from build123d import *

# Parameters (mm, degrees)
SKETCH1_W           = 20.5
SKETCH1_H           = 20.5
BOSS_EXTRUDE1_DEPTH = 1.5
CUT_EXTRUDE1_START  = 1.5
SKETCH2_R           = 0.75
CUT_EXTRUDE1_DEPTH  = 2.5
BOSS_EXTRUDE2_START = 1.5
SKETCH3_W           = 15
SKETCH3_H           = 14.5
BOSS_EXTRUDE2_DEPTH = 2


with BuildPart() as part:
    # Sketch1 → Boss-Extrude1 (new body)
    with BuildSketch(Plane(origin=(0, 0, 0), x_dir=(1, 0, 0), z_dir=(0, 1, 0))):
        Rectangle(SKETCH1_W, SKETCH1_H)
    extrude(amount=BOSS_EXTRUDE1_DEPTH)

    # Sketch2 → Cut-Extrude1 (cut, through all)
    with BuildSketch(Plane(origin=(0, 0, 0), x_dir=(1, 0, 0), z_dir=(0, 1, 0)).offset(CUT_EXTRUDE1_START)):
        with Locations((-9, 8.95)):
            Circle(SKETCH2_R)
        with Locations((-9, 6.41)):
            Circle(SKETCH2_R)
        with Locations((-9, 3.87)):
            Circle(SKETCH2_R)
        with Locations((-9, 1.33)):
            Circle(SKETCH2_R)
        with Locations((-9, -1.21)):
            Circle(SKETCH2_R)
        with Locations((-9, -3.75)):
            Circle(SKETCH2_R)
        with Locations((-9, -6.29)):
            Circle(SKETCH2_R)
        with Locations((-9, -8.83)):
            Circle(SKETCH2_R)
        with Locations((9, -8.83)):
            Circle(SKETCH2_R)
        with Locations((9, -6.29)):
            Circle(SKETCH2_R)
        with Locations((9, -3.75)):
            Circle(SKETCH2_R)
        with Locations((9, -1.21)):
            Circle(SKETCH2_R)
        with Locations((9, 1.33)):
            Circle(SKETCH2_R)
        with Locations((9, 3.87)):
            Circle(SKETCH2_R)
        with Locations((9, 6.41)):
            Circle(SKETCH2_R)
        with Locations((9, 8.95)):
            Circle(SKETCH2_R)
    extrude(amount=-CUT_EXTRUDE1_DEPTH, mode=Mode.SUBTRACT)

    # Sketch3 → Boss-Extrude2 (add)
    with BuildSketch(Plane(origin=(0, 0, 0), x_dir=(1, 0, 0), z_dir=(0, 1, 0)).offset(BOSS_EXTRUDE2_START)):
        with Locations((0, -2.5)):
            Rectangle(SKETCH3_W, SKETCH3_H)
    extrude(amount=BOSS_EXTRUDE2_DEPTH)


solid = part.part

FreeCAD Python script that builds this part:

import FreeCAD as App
import Part
import Sketcher
from FreeCAD import Vector
Q = App.Units.Quantity

doc = App.newDocument("Part")
body = doc.addObject("PartDesign::Body", "Body")

# Sketch on XZ plane
sketch1 = body.newObject("Sketcher::SketchObject", "Sketch")
sketch1.AttachmentSupport = (doc.getObject("XZ_Plane"), [""])
sketch1.MapMode = "FlatFace"
sketch1.addGeometry(Part.LineSegment(Vector(-10, -10, 0), Vector(-10, 10, 0)), False)
sketch1.addGeometry(Part.LineSegment(Vector(-10, 10, 0), Vector(10, 10, 0)), False)
sketch1.addGeometry(Part.LineSegment(Vector(10, 10, 0), Vector(10, -10, 0)), False)
sketch1.addGeometry(Part.LineSegment(Vector(10, -10, 0), Vector(-10, -10, 0)), False)
sketch1.addConstraint(Sketcher.Constraint("Coincident", 0, 2, 1, 1))
sketch1.addConstraint(Sketcher.Constraint("Coincident", 1, 2, 2, 1))
sketch1.addConstraint(Sketcher.Constraint("Coincident", 2, 2, 3, 1))
sketch1.addConstraint(Sketcher.Constraint("Coincident", 3, 2, 0, 1))
sketch1.addConstraint(Sketcher.Constraint("Vertical", 0))
sketch1.addConstraint(Sketcher.Constraint("Horizontal", 1))
sketch1.addConstraint(Sketcher.Constraint("Vertical", 2))
sketch1.addConstraint(Sketcher.Constraint("Horizontal", 3))
sketch1.addConstraint(Sketcher.Constraint("Symmetric", 0, 2, 2, 2, -1, 1))
sketch1.addConstraint(Sketcher.Constraint("Equal", 3, 0))
sketch1.addConstraint(Sketcher.Constraint("DistanceX", 1, 1, 1, 2, Q("20.5 mm")))
pad1 = body.newObject("PartDesign::Pad", "Pad")
pad1.Profile = sketch1
pad1.Length = 1.5
pad1.Reversed = True

# Sketch on XZ plane
sketch2 = body.newObject("Sketcher::SketchObject", "Sketch001")
sketch2.AttachmentSupport = (doc.getObject("XZ_Plane"), [""])
sketch2.MapMode = "FlatFace"
sketch2.AttachmentOffset = App.Placement(Vector(0, 0, -1.5), App.Rotation())
sketch2.addGeometry(Part.Circle(Vector(-9, -8.9, 0), Vector(0, 0, 1), 0.8), False)
sketch2.addGeometry(Part.Circle(Vector(-9, -6.4, 0), Vector(0, 0, 1), 0.8), False)
sketch2.addGeometry(Part.Circle(Vector(-9, -3.9, 0), Vector(0, 0, 1), 0.8), False)
sketch2.addGeometry(Part.Circle(Vector(-9, -1.3, 0), Vector(0, 0, 1), 0.8), False)
sketch2.addGeometry(Part.Circle(Vector(-9, 1.2, 0), Vector(0, 0, 1), 0.8), False)
sketch2.addGeometry(Part.Circle(Vector(-9, 3.8, 0), Vector(0, 0, 1), 0.8), False)
sketch2.addGeometry(Part.Circle(Vector(-9, 6.3, 0), Vector(0, 0, 1), 0.8), False)
sketch2.addGeometry(Part.Circle(Vector(-9, 8.8, 0), Vector(0, 0, 1), 0.8), False)
sketch2.addGeometry(Part.Circle(Vector(9, 8.8, 0), Vector(0, 0, 1), 0.8), False)
sketch2.addGeometry(Part.Circle(Vector(9, 6.3, 0), Vector(0, 0, 1), 0.8), False)
sketch2.addGeometry(Part.Circle(Vector(9, 3.8, 0), Vector(0, 0, 1), 0.8), False)
sketch2.addGeometry(Part.Circle(Vector(9, 1.2, 0), Vector(0, 0, 1), 0.8), False)
sketch2.addGeometry(Part.Circle(Vector(9, -1.3, 0), Vector(0, 0, 1), 0.8), False)
sketch2.addGeometry(Part.Circle(Vector(9, -3.9, 0), Vector(0, 0, 1), 0.8), False)
sketch2.addGeometry(Part.Circle(Vector(9, -6.4, 0), Vector(0, 0, 1), 0.8), False)
sketch2.addGeometry(Part.Circle(Vector(9, -8.9, 0), Vector(0, 0, 1), 0.8), False)
sketch2.addConstraint(Sketcher.Constraint("Equal", 0, 1))
sketch2.addConstraint(Sketcher.Constraint("Equal", 1, 2))
sketch2.addConstraint(Sketcher.Constraint("Equal", 2, 3))
sketch2.addConstraint(Sketcher.Constraint("Equal", 3, 4))
sketch2.addConstraint(Sketcher.Constraint("Equal", 4, 5))
sketch2.addConstraint(Sketcher.Constraint("Equal", 5, 6))
sketch2.addConstraint(Sketcher.Constraint("Equal", 6, 7))
sketch2.addConstraint(Sketcher.Constraint("Equal", 7, 8))
sketch2.addConstraint(Sketcher.Constraint("Equal", 8, 9))
sketch2.addConstraint(Sketcher.Constraint("Equal", 9, 10))
sketch2.addConstraint(Sketcher.Constraint("Equal", 10, 11))
sketch2.addConstraint(Sketcher.Constraint("Equal", 11, 12))
sketch2.addConstraint(Sketcher.Constraint("Equal", 12, 13))
sketch2.addConstraint(Sketcher.Constraint("Equal", 13, 14))
sketch2.addConstraint(Sketcher.Constraint("Equal", 14, 15))
sketch2.addConstraint(Sketcher.Constraint("Symmetric", 7, 3, 8, 3, -2))
sketch2.addConstraint(Sketcher.Constraint("Symmetric", 6, 3, 9, 3, -2))
sketch2.addConstraint(Sketcher.Constraint("Symmetric", 5, 3, 10, 3, -2))
sketch2.addConstraint(Sketcher.Constraint("Symmetric", 4, 3, 11, 3, -2))
sketch2.addConstraint(Sketcher.Constraint("Symmetric", 3, 3, 12, 3, -2))
sketch2.addConstraint(Sketcher.Constraint("Symmetric", 2, 3, 13, 3, -2))
sketch2.addConstraint(Sketcher.Constraint("Symmetric", 1, 3, 14, 3, -2))
sketch2.addConstraint(Sketcher.Constraint("Symmetric", 0, 3, 15, 3, -2))
sketch2.addConstraint(Sketcher.Constraint("Vertical", 0, 3, 1, 3))
sketch2.addConstraint(Sketcher.Constraint("Vertical", 1, 3, 2, 3))
sketch2.addConstraint(Sketcher.Constraint("Vertical", 2, 3, 3, 3))
sketch2.addConstraint(Sketcher.Constraint("Vertical", 3, 3, 4, 3))
sketch2.addConstraint(Sketcher.Constraint("Vertical", 4, 3, 5, 3))
sketch2.addConstraint(Sketcher.Constraint("Vertical", 5, 3, 6, 3))
sketch2.addConstraint(Sketcher.Constraint("Vertical", 6, 3, 7, 3))
sketch2.addConstraint(Sketcher.Constraint("Diameter", 0, Q("1.5 mm")))
sketch2.addConstraint(Sketcher.Constraint("DistanceX", 0, 3, -1, 1, Q("9 mm")))
sketch2.addConstraint(Sketcher.Constraint("DistanceY", 0, 3, 5, 3, Q("12.7 mm")))
sketch2.addConstraint(Sketcher.Constraint("DistanceY", 1, 3, 6, 3, Q("12.7 mm")))
sketch2.addConstraint(Sketcher.Constraint("DistanceY", 2, 3, 7, 3, Q("12.7 mm")))
sketch2.addConstraint(Sketcher.Constraint("DistanceY", 0, 3, -1, 1, Q("8.95 mm")))
sketch2.addConstraint(Sketcher.Constraint("DistanceY", 1, 3, -1, 1, Q("6.41 mm")))
sketch2.addConstraint(Sketcher.Constraint("DistanceY", 2, 3, -1, 1, Q("3.87 mm")))
sketch2.addConstraint(Sketcher.Constraint("DistanceY", 3, 3, -1, 1, Q("1.33 mm")))
sketch2.addConstraint(Sketcher.Constraint("DistanceY", -1, 1, 4, 3, Q("1.21 mm")))
pocket1 = body.newObject("PartDesign::Pocket", "Pocket")
pocket1.Profile = sketch2
pocket1.Type = "ThroughAll"
pocket1.Reversed = True

# Sketch on XZ plane
sketch3 = body.newObject("Sketcher::SketchObject", "Sketch002")
sketch3.AttachmentSupport = (doc.getObject("XZ_Plane"), [""])
sketch3.MapMode = "FlatFace"
sketch3.AttachmentOffset = App.Placement(Vector(0, 0, -1.5), App.Rotation())
sketch3.addGeometry(Part.LineSegment(Vector(-8, -5, 0), Vector(-8, 10, 0)), False)
sketch3.addGeometry(Part.LineSegment(Vector(-8, 10, 0), Vector(8, 10, 0)), False)
sketch3.addGeometry(Part.LineSegment(Vector(8, 10, 0), Vector(8, -5, 0)), False)
sketch3.addGeometry(Part.LineSegment(Vector(8, -5, 0), Vector(-8, -5, 0)), False)
sketch3.addConstraint(Sketcher.Constraint("Coincident", 0, 2, 1, 1))
sketch3.addConstraint(Sketcher.Constraint("Coincident", 1, 2, 2, 1))
sketch3.addConstraint(Sketcher.Constraint("Coincident", 2, 2, 3, 1))
sketch3.addConstraint(Sketcher.Constraint("Coincident", 3, 2, 0, 1))
sketch3.addConstraint(Sketcher.Constraint("Vertical", 0))
sketch3.addConstraint(Sketcher.Constraint("Horizontal", 1))
sketch3.addConstraint(Sketcher.Constraint("Vertical", 2))
sketch3.addConstraint(Sketcher.Constraint("Horizontal", 3))
sketch3.addConstraint(Sketcher.Constraint("DistanceX", 1, 1, 1, 2, Q("15 mm")))
sketch3.addConstraint(Sketcher.Constraint("DistanceY", 0, 1, 0, 2, Q("14.5 mm")))
sketch3.addConstraint(Sketcher.Constraint("DistanceX", 0, 2, -1, 1, Q("7.5 mm")))
sketch3.addConstraint(Sketcher.Constraint("DistanceY", -1, 1, 0, 2, Q("9.75 mm")))
pad2 = body.newObject("PartDesign::Pad", "Pad001")
pad2.Profile = sketch3
pad2.Length = 2
pad2.Reversed = True

doc.recompute()
